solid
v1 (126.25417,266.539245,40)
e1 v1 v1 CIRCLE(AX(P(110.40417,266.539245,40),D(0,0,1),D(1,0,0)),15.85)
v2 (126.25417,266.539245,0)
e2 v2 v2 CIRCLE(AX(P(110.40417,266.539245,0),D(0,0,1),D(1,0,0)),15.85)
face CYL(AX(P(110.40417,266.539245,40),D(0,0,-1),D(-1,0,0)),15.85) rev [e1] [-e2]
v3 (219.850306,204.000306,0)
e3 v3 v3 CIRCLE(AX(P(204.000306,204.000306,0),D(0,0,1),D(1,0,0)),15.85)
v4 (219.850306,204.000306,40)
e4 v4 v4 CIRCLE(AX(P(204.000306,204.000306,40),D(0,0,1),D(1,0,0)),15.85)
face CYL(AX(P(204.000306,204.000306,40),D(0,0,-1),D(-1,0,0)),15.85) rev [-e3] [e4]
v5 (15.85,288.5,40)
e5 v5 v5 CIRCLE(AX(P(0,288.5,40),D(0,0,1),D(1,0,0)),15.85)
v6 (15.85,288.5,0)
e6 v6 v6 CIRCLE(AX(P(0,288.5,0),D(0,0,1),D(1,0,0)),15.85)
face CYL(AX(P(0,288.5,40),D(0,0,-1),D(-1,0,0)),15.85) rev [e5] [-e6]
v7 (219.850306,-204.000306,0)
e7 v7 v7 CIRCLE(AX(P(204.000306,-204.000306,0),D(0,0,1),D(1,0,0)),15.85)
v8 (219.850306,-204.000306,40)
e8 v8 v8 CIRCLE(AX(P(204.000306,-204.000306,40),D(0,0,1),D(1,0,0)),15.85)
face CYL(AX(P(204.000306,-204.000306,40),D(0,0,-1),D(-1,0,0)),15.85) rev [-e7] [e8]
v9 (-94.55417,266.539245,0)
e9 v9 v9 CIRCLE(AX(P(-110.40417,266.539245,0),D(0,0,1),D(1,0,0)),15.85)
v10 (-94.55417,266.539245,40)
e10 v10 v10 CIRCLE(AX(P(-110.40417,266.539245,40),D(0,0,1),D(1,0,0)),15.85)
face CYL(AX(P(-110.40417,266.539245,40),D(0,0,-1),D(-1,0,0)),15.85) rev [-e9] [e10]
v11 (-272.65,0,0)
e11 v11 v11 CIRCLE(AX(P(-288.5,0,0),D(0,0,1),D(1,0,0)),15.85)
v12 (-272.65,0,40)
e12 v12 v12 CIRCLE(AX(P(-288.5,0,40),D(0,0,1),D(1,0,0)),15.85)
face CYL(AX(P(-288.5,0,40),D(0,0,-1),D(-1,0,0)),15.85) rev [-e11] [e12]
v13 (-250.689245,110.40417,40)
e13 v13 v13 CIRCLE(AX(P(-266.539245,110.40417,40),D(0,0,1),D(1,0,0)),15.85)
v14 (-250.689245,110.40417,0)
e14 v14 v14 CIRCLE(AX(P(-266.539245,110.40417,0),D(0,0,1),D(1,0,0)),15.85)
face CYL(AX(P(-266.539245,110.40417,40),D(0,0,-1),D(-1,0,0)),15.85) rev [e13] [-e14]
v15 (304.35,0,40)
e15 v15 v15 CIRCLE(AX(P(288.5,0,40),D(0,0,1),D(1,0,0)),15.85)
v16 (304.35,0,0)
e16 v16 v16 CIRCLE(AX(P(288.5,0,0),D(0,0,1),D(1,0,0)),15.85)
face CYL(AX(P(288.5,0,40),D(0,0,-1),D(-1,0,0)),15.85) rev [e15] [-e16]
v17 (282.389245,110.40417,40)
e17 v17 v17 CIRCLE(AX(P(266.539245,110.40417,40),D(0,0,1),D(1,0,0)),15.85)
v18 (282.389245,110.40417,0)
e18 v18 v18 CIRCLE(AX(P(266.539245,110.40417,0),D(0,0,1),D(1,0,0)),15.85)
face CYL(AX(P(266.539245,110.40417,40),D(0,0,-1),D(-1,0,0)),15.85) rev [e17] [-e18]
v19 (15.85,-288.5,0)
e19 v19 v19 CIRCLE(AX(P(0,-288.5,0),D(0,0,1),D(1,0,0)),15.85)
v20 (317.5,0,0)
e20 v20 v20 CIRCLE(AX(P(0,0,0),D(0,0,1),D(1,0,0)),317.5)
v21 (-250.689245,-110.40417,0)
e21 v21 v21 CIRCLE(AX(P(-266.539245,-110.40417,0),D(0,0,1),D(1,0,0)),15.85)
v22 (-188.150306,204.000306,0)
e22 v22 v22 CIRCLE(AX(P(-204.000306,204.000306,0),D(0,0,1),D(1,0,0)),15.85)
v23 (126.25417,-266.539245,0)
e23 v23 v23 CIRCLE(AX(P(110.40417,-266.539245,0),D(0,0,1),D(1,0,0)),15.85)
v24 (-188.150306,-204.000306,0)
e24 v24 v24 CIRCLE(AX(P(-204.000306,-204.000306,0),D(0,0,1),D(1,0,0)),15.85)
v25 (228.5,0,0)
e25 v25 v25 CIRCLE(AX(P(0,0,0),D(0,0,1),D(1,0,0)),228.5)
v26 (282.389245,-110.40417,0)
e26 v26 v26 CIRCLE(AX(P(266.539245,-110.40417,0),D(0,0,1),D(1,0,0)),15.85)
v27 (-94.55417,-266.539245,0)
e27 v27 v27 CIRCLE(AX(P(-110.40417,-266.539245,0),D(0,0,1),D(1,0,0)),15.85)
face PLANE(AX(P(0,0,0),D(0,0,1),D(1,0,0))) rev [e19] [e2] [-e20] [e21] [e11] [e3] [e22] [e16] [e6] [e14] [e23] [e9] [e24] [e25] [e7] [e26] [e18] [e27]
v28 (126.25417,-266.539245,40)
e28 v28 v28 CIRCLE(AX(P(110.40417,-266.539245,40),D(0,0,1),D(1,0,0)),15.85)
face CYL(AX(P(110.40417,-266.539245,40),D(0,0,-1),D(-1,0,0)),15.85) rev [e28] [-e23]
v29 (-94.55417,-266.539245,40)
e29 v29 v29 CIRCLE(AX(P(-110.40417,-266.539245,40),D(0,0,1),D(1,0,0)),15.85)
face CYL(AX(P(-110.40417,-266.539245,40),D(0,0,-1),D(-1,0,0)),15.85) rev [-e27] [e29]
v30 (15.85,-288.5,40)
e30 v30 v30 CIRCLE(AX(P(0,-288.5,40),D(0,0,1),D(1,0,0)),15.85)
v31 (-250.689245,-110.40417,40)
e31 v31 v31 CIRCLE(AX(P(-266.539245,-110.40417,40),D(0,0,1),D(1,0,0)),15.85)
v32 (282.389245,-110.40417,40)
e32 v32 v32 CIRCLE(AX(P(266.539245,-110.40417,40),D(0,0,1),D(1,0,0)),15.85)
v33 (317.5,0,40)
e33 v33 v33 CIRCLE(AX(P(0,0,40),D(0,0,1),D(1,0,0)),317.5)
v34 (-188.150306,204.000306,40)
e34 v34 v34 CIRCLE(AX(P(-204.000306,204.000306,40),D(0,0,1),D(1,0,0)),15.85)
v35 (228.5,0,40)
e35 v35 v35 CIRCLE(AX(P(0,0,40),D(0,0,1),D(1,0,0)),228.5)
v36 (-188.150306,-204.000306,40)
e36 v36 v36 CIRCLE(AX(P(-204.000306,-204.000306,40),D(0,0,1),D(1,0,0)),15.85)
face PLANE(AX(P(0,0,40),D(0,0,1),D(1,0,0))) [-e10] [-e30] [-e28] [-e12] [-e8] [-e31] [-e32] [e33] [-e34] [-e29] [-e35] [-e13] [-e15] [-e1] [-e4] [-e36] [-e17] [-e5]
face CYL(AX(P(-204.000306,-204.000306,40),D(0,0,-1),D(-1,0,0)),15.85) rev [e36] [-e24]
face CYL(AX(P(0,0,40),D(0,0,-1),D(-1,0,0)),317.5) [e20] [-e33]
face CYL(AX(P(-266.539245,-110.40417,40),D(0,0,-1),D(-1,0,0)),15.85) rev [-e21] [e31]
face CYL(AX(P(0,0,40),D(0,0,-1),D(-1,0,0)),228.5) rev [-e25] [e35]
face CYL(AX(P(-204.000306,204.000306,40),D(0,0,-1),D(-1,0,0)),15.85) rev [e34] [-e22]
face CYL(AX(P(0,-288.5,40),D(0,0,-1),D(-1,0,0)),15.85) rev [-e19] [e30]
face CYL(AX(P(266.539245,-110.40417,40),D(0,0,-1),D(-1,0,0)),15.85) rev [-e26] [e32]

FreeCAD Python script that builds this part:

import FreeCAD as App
import Part
import Sketcher

doc = App.newDocument("Part")
body = doc.addObject("PartDesign::Body", "Body")

sketch1 = body.newObject("Sketcher::SketchObject", "Sketch")
sketch1.AttachmentSupport = (doc.getObject("XY_Plane"), [""])
sketch1.MapMode = "FlatFace"
sketch1.addGeometry([
    Part.Circle(App.Vector(0, 0, 0), App.Vector(0, 0, 1), 318),
    Part.Circle(App.Vector(-204, -204, 0), App.Vector(0, 0, 1), 16),
    Part.Circle(App.Vector(-110, -267, 0), App.Vector(0, 0, 1), 16),
    Part.Circle(App.Vector(-267, -110, 0), App.Vector(0, 0, 1), 16),
    Part.Circle(App.Vector(0, -288, 0), App.Vector(0, 0, 1), 16),
    Part.Circle(App.Vector(110, -267, 0), App.Vector(0, 0, 1), 16),
    Part.Circle(App.Vector(204, -204, 0), App.Vector(0, 0, 1), 16),
    Part.Circle(App.Vector(267, -110, 0), App.Vector(0, 0, 1), 16),
    Part.Circle(App.Vector(-288, 0, 0), App.Vector(0, 0, 1), 16),
    Part.Circle(App.Vector(-267, 110, 0), App.Vector(0, 0, 1), 16),
    Part.Circle(App.Vector(-204, 204, 0), App.Vector(0, 0, 1), 16),
    Part.Circle(App.Vector(-110, 267, 0), App.Vector(0, 0, 1), 16),
    Part.Circle(App.Vector(0, 0, 0), App.Vector(0, 0, 1), 228),
    Part.Circle(App.Vector(288, 0, 0), App.Vector(0, 0, 1), 16),
    Part.Circle(App.Vector(267, 110, 0), App.Vector(0, 0, 1), 16),
    Part.Circle(App.Vector(0, 288, 0), App.Vector(0, 0, 1), 16),
    Part.Circle(App.Vector(110, 267, 0), App.Vector(0, 0, 1), 16),
    Part.Circle(App.Vector(204, 204, 0), App.Vector(0, 0, 1), 16),
], False)
sketch1.addConstraint([
    Sketcher.Constraint("Coincident", 0, 3, -1, 1),
    Sketcher.Constraint("Coincident", 12, 3, -1, 1),
    Sketcher.Constraint("Equal", 1, 2),
    Sketcher.Constraint("Equal", 2, 3),
    Sketcher.Constraint("Equal", 3, 4),
    Sketcher.Constraint("Equal", 4, 5),
    Sketcher.Constraint("Equal", 5, 6),
    Sketcher.Constraint("Equal", 6, 7),
    Sketcher.Constraint("Equal", 7, 8),
    Sketcher.Constraint("Equal", 8, 9),
    Sketcher.Constraint("Equal", 9, 10),
    Sketcher.Constraint("Equal", 10, 11),
    Sketcher.Constraint("Equal", 11, 13),
    Sketcher.Constraint("Equal", 13, 14),
    Sketcher.Constraint("Equal", 14, 15),
    Sketcher.Constraint("Equal", 15, 16),
    Sketcher.Constraint("Equal", 16, 17),
    Sketcher.Constraint("Symmetric", 7, 3, 9, 3, -1, 1),
    Sketcher.Constraint("Symmetric", 6, 3, 10, 3, -1, 1),
    Sketcher.Constraint("Symmetric", 5, 3, 11, 3, -1, 1),
    Sketcher.Constraint("Symmetric", 8, 3, 13, 3, -1, 1),
    Sketcher.Constraint("Symmetric", 3, 3, 14, 3, -1, 1),
    Sketcher.Constraint("Symmetric", 4, 3, 15, 3, -1, 1),
    Sketcher.Constraint("Symmetric", 2, 3, 16, 3, -1, 1),
    Sketcher.Constraint("Symmetric", 1, 3, 17, 3, -1, 1),
    Sketcher.Constraint("Symmetric", 2, 3, 5, 3, -2),
    Sketcher.Constraint("Symmetric", 1, 3, 6, 3, -2),
    Sketcher.Constraint("Symmetric", 3, 3, 7, 3, -2),
    Sketcher.Constraint("PointOnObject", 4, 3, -2),
    Sketcher.Constraint("PointOnObject", 8, 3, -1),
    Sketcher.Constraint("Diameter", 0, 635.0),
    Sketcher.Constraint("Diameter", 12, 457.0),
    Sketcher.Constraint("Diameter", 1, 31.7),
    Sketcher.Constraint("DistanceY", 4, 3, -1, 1, 288.5),
    Sketcher.Constraint("DistanceX", 8, 3, -1, 1, 288.5),
    Sketcher.Constraint("DistanceX", 2, 3, -1, 1, 110.40417),
    Sketcher.Constraint("DistanceY", 3, 3, -1, 1, 110.40417),
    Sketcher.Constraint("DistanceY", 2, 3, 1, 3, 62.538939),
    Sketcher.Constraint("DistanceX", 3, 3, 1, 3, 62.538939),
    Sketcher.Constraint("DistanceX", 1, 3, -1, 1, 204.000306),
    Sketcher.Constraint("DistanceY", 1, 3, -1, 1, 204.000306),
])
pad1 = body.newObject("PartDesign::Pad", "Pad")
pad1.Profile = sketch1
pad1.Length = 40

doc.recompute()
